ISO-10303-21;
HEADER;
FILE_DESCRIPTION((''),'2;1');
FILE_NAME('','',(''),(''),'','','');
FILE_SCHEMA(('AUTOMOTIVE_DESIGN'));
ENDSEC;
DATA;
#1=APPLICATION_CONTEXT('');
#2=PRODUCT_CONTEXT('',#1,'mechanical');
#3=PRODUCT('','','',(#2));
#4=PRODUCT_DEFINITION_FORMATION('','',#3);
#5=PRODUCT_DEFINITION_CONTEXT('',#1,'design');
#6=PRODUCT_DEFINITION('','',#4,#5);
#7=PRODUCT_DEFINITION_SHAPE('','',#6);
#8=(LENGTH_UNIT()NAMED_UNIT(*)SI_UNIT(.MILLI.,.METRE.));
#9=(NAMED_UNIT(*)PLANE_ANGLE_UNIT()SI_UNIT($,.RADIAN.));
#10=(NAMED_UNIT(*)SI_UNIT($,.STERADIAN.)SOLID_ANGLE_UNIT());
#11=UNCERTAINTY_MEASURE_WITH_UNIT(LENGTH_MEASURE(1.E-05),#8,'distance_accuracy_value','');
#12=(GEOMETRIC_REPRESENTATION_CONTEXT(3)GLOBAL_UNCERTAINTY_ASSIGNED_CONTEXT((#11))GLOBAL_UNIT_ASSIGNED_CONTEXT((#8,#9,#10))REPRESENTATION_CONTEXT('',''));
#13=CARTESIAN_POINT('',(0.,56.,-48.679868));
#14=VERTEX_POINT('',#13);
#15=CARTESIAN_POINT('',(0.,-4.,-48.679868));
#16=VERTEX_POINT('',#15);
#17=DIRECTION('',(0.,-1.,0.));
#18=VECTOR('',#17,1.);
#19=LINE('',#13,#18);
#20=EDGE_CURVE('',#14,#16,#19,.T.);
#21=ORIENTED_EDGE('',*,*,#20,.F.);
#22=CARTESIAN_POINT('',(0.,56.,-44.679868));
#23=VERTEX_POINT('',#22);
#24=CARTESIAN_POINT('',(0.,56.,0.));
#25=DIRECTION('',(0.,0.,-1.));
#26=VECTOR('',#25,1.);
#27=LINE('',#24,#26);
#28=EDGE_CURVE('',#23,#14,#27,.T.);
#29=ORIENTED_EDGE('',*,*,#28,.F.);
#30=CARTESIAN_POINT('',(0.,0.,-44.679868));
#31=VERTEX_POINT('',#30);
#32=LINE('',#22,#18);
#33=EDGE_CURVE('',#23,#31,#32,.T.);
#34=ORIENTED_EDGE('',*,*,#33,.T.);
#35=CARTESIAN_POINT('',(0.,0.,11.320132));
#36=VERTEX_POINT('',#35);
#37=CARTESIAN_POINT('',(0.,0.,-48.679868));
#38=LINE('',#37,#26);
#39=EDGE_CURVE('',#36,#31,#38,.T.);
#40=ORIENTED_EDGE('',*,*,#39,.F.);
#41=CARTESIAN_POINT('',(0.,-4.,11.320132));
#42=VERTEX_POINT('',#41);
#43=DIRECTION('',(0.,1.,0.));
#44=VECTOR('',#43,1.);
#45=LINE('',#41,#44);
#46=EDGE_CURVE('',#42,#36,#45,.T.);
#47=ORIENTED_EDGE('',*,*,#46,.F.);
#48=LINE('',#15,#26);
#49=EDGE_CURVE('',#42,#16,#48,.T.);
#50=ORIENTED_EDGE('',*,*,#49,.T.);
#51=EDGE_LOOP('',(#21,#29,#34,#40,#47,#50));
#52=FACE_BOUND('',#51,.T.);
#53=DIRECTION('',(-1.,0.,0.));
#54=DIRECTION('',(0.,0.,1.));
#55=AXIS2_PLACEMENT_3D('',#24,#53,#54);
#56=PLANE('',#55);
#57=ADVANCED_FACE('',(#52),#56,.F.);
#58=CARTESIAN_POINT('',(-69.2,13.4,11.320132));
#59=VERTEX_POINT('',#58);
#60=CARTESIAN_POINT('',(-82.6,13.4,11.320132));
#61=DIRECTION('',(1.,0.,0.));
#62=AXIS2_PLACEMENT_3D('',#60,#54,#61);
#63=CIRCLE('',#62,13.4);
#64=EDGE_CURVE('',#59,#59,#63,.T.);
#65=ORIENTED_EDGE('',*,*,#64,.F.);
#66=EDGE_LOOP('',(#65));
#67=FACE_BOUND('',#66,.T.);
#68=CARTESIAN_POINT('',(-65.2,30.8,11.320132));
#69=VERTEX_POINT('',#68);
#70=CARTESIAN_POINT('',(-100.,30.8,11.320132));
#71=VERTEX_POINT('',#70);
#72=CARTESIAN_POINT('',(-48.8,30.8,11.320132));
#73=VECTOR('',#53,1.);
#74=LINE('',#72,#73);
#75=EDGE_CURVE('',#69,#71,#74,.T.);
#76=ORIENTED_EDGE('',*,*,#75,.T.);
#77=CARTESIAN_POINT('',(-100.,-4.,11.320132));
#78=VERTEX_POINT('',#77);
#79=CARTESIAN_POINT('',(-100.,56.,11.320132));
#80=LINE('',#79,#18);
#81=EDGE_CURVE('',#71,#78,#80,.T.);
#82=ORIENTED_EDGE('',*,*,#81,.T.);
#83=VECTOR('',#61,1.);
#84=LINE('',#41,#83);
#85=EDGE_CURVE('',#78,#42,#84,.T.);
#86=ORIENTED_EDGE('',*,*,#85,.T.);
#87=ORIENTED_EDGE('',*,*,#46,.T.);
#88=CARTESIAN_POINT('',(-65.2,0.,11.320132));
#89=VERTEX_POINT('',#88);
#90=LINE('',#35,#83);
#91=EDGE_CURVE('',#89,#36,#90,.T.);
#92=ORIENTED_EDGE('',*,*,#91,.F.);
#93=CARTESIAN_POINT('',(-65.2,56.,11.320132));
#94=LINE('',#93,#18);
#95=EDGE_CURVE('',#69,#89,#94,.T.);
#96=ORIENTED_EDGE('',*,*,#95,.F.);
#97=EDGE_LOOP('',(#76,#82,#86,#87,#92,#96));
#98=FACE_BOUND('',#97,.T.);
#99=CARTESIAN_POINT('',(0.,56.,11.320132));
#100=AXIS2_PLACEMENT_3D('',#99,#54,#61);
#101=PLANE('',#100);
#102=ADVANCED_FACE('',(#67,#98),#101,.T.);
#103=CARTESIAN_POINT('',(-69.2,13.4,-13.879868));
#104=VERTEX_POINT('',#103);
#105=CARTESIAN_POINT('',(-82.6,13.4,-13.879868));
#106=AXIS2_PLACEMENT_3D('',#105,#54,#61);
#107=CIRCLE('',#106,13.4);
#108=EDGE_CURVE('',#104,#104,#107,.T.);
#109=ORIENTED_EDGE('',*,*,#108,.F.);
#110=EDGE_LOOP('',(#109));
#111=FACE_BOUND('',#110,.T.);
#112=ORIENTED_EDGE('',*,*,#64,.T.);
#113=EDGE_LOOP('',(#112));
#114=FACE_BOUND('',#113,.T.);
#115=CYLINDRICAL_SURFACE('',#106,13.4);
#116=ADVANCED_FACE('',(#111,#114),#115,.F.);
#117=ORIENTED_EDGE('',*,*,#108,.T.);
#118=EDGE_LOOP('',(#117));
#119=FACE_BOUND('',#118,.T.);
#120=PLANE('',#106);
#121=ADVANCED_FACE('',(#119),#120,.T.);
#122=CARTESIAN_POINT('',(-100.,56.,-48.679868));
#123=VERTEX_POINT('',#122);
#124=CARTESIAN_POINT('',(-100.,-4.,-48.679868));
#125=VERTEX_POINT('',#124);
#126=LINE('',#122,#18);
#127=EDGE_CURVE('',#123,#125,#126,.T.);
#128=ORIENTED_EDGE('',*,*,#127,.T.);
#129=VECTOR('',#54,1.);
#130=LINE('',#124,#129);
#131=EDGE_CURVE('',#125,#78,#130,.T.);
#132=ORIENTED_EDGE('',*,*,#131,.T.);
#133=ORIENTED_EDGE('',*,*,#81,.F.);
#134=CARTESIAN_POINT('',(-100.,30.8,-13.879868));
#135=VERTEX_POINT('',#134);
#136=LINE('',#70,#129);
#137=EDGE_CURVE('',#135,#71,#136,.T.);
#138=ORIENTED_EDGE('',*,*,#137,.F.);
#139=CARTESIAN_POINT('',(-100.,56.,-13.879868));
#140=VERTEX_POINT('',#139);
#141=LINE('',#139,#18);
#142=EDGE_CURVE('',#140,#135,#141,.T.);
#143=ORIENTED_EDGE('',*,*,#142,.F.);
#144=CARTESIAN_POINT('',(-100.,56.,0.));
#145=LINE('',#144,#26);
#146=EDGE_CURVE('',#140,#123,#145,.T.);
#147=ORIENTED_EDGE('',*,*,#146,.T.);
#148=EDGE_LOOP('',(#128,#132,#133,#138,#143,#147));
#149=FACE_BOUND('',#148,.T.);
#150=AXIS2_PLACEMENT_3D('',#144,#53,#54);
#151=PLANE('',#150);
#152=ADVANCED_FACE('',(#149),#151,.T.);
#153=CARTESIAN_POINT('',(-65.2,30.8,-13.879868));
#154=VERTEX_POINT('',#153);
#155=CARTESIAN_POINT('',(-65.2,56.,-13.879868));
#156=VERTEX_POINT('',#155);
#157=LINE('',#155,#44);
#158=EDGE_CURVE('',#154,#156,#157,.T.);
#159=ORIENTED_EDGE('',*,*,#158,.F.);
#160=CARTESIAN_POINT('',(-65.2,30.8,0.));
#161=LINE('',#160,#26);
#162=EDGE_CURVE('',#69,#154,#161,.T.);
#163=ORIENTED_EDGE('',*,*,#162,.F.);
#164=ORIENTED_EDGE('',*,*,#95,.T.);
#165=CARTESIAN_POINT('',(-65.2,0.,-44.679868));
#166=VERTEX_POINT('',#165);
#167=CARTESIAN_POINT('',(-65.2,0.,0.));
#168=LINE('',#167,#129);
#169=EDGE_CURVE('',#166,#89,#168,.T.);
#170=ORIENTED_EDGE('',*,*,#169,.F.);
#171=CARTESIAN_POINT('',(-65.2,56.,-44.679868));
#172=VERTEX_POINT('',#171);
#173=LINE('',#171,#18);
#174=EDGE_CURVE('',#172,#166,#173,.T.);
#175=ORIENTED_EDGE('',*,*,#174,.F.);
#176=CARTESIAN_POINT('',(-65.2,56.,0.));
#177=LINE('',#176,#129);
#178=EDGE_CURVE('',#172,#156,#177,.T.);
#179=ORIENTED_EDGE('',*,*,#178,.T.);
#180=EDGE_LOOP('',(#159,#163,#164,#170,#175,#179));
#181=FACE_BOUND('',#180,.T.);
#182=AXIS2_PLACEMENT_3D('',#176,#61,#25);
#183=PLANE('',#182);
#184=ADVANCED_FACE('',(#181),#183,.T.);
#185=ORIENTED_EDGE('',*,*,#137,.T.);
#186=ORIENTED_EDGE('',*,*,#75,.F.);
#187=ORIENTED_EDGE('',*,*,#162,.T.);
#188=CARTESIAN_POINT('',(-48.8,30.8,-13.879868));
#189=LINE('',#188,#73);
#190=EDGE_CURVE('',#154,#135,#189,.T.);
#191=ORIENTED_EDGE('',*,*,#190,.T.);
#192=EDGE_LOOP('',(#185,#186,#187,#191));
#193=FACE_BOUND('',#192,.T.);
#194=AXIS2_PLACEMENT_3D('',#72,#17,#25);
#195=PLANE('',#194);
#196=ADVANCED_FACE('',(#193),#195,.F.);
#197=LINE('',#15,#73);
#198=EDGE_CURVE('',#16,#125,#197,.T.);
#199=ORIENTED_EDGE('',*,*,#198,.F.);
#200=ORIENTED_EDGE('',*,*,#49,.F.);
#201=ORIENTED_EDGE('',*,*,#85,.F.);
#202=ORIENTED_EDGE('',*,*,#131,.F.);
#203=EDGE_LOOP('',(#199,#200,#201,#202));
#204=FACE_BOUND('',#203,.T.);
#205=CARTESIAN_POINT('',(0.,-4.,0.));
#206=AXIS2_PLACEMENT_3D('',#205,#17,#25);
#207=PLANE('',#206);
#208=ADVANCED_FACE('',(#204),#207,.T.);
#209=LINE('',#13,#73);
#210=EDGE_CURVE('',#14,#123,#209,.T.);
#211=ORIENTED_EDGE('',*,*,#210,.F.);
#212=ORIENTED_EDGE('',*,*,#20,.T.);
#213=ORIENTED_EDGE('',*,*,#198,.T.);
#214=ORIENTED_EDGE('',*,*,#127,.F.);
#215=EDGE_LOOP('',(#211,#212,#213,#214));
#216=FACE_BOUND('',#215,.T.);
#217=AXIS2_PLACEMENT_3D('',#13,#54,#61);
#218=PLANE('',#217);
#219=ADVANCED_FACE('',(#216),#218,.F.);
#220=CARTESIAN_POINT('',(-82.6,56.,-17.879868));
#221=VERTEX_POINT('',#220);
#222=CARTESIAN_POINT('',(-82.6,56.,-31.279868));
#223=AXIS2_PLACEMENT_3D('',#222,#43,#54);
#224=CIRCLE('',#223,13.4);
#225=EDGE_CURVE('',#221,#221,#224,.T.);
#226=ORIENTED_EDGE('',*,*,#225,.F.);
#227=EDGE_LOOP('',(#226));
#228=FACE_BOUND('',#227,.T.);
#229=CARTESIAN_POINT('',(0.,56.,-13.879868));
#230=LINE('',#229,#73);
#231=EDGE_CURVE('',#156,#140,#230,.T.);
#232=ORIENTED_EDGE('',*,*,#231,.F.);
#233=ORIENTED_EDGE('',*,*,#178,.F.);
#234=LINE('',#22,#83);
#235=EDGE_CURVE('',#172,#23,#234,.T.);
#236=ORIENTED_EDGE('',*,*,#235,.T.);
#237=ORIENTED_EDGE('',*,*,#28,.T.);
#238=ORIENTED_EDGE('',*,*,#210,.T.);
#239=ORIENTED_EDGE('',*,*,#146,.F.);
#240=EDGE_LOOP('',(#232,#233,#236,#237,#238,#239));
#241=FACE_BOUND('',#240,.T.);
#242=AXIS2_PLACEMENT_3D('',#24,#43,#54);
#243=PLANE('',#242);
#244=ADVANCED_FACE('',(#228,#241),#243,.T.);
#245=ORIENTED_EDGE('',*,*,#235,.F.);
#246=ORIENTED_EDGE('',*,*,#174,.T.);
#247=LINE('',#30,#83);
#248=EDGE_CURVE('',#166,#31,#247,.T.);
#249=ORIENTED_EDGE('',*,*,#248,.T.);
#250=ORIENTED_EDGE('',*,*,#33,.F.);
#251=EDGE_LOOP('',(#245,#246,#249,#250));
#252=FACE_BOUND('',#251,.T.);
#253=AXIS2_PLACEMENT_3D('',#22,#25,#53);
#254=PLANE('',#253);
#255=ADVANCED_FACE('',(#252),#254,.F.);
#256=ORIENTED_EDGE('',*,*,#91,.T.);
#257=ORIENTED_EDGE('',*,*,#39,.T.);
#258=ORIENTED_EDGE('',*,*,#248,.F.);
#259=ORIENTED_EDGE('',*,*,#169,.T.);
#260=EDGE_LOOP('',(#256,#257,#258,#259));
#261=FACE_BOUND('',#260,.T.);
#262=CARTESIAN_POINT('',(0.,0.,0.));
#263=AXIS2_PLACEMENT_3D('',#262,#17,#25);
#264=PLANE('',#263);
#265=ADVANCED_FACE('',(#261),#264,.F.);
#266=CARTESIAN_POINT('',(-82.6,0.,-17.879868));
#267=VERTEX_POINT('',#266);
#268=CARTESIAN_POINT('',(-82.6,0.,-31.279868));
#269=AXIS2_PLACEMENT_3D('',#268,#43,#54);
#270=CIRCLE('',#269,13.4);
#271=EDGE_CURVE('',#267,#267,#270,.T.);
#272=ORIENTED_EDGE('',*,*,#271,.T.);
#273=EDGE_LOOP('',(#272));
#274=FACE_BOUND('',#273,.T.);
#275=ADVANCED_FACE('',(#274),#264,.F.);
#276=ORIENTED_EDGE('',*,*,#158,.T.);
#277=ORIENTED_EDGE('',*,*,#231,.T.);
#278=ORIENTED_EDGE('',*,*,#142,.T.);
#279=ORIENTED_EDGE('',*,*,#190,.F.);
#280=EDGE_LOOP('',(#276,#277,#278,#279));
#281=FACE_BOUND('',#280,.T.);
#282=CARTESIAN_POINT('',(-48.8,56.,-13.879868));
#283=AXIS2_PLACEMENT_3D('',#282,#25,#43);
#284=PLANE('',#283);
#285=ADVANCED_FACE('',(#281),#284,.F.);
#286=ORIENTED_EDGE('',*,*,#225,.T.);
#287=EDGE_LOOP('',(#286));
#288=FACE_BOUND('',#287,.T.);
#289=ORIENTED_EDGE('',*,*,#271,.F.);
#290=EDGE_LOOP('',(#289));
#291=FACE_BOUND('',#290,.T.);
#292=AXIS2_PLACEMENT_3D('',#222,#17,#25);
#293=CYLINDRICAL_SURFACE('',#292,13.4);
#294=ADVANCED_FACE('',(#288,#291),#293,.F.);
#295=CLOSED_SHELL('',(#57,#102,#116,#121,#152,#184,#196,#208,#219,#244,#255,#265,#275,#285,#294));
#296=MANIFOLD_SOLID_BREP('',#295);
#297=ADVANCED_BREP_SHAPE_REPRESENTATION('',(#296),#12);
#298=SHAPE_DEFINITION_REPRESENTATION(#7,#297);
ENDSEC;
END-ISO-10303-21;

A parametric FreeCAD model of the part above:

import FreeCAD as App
import Part
import Sketcher
Q = App.Units.Quantity

doc = App.newDocument("Part")
body = doc.addObject("PartDesign::Body", "Body")

sketch1 = body.newObject("Sketcher::SketchObject", "Sketch")
sketch1.AttachmentSupport = (doc.getObject("XZ_Plane"), [""])
sketch1.MapMode = "FlatFace"
sketch1.addGeometry([
    Part.LineSegment(App.Vector(-65.2, 11.3, 0), App.Vector(-65.2, -44.7, 0)),
    Part.LineSegment(App.Vector(-65.2, -44.7, 0), App.Vector(0, -44.7, 0)),
    Part.LineSegment(App.Vector(0, -44.7, 0), App.Vector(0, -48.7, 0)),
    Part.LineSegment(App.Vector(0, -48.7, 0), App.Vector(-100, -48.7, 0)),
    Part.LineSegment(App.Vector(-100, -48.7, 0), App.Vector(-100, 11.3, 0)),
    Part.LineSegment(App.Vector(-100, 11.3, 0), App.Vector(-65.2, 11.3, 0)),
    Part.Circle(App.Vector(-82.6, -31.3, 0), App.Vector(0, 0, 1), 13.4),
], False)
sketch1.addConstraint([
    Sketcher.Constraint("Coincident", 0, 2, 1, 1),
    Sketcher.Constraint("Coincident", 1, 2, 2, 1),
    Sketcher.Constraint("Coincident", 2, 2, 3, 1),
    Sketcher.Constraint("Coincident", 3, 2, 4, 1),
    Sketcher.Constraint("Coincident", 4, 2, 5, 1),
    Sketcher.Constraint("Coincident", 5, 2, 0, 1),
    Sketcher.Constraint("Vertical", 0),
    Sketcher.Constraint("Horizontal", 1),
    Sketcher.Constraint("Vertical", 2),
    Sketcher.Constraint("Horizontal", 3),
    Sketcher.Constraint("Vertical", 4),
    Sketcher.Constraint("Horizontal", 5),
    Sketcher.Constraint("PointOnObject", 1, 2, -2),
    Sketcher.Constraint("Diameter", 6, Q("26.8 mm")),
    Sketcher.Constraint("DistanceX", 3, 2, 3, 1, Q("100 mm")),
    Sketcher.Constraint("DistanceY", 0, 2, 0, 1, Q("56 mm")),
    Sketcher.Constraint("DistanceY", 2, 2, 2, 1, Q("4 mm")),
    Sketcher.Constraint("DistanceX", 1, 1, 1, 2, Q("65.2 mm")),
    Sketcher.Constraint("DistanceX", 6, 3, -1, 1, Q("82.6 mm")),
    Sketcher.Constraint("DistanceY", 0, 2, 6, 3, Q("13.4 mm")),
    Sketcher.Constraint("DistanceY", 6, 3, -1, 1, Q("31.279868 mm")),
])
pad1 = body.newObject("PartDesign::Pad", "Pad")
pad1.Profile = sketch1
pad1.Length = 56
pad1.Reversed = True

sketch2 = body.newObject("Sketcher::SketchObject", "Sketch001")
sketch2.AttachmentSupport = (doc.getObject("XZ_Plane"), [""])
sketch2.MapMode = "FlatFace"
sketch2.addGeometry([
    Part.LineSegment(App.Vector(-100, -49, 0), App.Vector(-100, 11, 0)),
    Part.LineSegment(App.Vector(-100, 11, 0), App.Vector(0, 11, 0)),
    Part.LineSegment(App.Vector(0, 11, 0), App.Vector(0, -49, 0)),
    Part.LineSegment(App.Vector(0, -49, 0), App.Vector(-100, -49, 0)),
], False)
sketch2.addConstraint([
    Sketcher.Constraint("Coincident", 0, 2, 1, 1),
    Sketcher.Constraint("Coincident", 1, 2, 2, 1),
    Sketcher.Constraint("Coincident", 2, 2, 3, 1),
    Sketcher.Constraint("Coincident", 3, 2, 0, 1),
    Sketcher.Constraint("Vertical", 0),
    Sketcher.Constraint("Horizontal", 1),
    Sketcher.Constraint("Vertical", 2),
    Sketcher.Constraint("Horizontal", 3),
    Sketcher.Constraint("PointOnObject", 1, 2, -2),
    Sketcher.Constraint("DistanceX", 1, 1, 1, 2, Q("100 mm")),
    Sketcher.Constraint("DistanceY", 0, 1, 0, 2, Q("60 mm")),
    Sketcher.Constraint("DistanceY", -1, 1, 0, 2, Q("11.320132 mm")),
])
pad2 = body.newObject("PartDesign::Pad", "Pad001")
pad2.Profile = sketch2
pad2.Length = 4

sketch3 = body.newObject("Sketcher::SketchObject", "Sketch002")
sketch3.AttachmentSupport = (doc.getObject("XY_Plane"), [""])
sketch3.MapMode = "FlatFace"
sketch3.AttachmentOffset = App.Placement(App.Vector(0, 0, 11.320132), App.Rotation())
sketch3.addGeometry(Part.Circle(App.Vector(-83, 13, 0), App.Vector(0, 0, 1), 13), False)
sketch3.addConstraint([
    Sketcher.Constraint("Diameter", 0, Q("26.8 mm")),
    Sketcher.Constraint("DistanceX", 0, 3, -1, 1, Q("82.6 mm")),
    Sketcher.Constraint("DistanceY", -1, 1, 0, 3, Q("13.4 mm")),
])
pocket1 = body.newObject("PartDesign::Pocket", "Pocket")
pocket1.Profile = sketch3
pocket1.Length = 25.2

sketch4 = body.newObject("Sketcher::SketchObject", "Sketch003")
sketch4.AttachmentSupport = (doc.getObject("YZ_Plane"), [""])
sketch4.MapMode = "FlatFace"
sketch4.AttachmentOffset = App.Placement(App.Vector(0, 0, -100), App.Rotation())
sketch4.addGeometry([
    Part.LineSegment(App.Vector(56, -14, 0), App.Vector(31, -14, 0)),
    Part.LineSegment(App.Vector(31, -14, 0), App.Vector(31, 11, 0)),
    Part.LineSegment(App.Vector(31, 11, 0), App.Vector(56, 11, 0)),
    Part.LineSegment(App.Vector(56, 11, 0), App.Vector(56, -14, 0)),
], False)
sketch4.addConstraint([
    Sketcher.Constraint("Coincident", 0, 2, 1, 1),
    Sketcher.Constraint("Coincident", 1, 2, 2, 1),
    Sketcher.Constraint("Coincident", 2, 2, 3, 1),
    Sketcher.Constraint("Coincident", 3, 2, 0, 1),
    Sketcher.Constraint("Horizontal", 0),
    Sketcher.Constraint("Vertical", 1),
    Sketcher.Constraint("Horizontal", 2),
    Sketcher.Constraint("Vertical", 3),
    Sketcher.Constraint("Equal", 2, 1),
    Sketcher.Constraint("DistanceX", 0, 2, 0, 1, Q("25.2 mm")),
    Sketcher.Constraint("DistanceX", -1, 1, 2, 2, Q("56 mm")),
    Sketcher.Constraint("DistanceY", 0, 2, -1, 1, Q("13.879868 mm")),
])
pocket2 = body.newObject("PartDesign::Pocket", "Pocket001")
pocket2.Profile = sketch4
pocket2.Length = 51.2
pocket2.Reversed = True

doc.recompute()
